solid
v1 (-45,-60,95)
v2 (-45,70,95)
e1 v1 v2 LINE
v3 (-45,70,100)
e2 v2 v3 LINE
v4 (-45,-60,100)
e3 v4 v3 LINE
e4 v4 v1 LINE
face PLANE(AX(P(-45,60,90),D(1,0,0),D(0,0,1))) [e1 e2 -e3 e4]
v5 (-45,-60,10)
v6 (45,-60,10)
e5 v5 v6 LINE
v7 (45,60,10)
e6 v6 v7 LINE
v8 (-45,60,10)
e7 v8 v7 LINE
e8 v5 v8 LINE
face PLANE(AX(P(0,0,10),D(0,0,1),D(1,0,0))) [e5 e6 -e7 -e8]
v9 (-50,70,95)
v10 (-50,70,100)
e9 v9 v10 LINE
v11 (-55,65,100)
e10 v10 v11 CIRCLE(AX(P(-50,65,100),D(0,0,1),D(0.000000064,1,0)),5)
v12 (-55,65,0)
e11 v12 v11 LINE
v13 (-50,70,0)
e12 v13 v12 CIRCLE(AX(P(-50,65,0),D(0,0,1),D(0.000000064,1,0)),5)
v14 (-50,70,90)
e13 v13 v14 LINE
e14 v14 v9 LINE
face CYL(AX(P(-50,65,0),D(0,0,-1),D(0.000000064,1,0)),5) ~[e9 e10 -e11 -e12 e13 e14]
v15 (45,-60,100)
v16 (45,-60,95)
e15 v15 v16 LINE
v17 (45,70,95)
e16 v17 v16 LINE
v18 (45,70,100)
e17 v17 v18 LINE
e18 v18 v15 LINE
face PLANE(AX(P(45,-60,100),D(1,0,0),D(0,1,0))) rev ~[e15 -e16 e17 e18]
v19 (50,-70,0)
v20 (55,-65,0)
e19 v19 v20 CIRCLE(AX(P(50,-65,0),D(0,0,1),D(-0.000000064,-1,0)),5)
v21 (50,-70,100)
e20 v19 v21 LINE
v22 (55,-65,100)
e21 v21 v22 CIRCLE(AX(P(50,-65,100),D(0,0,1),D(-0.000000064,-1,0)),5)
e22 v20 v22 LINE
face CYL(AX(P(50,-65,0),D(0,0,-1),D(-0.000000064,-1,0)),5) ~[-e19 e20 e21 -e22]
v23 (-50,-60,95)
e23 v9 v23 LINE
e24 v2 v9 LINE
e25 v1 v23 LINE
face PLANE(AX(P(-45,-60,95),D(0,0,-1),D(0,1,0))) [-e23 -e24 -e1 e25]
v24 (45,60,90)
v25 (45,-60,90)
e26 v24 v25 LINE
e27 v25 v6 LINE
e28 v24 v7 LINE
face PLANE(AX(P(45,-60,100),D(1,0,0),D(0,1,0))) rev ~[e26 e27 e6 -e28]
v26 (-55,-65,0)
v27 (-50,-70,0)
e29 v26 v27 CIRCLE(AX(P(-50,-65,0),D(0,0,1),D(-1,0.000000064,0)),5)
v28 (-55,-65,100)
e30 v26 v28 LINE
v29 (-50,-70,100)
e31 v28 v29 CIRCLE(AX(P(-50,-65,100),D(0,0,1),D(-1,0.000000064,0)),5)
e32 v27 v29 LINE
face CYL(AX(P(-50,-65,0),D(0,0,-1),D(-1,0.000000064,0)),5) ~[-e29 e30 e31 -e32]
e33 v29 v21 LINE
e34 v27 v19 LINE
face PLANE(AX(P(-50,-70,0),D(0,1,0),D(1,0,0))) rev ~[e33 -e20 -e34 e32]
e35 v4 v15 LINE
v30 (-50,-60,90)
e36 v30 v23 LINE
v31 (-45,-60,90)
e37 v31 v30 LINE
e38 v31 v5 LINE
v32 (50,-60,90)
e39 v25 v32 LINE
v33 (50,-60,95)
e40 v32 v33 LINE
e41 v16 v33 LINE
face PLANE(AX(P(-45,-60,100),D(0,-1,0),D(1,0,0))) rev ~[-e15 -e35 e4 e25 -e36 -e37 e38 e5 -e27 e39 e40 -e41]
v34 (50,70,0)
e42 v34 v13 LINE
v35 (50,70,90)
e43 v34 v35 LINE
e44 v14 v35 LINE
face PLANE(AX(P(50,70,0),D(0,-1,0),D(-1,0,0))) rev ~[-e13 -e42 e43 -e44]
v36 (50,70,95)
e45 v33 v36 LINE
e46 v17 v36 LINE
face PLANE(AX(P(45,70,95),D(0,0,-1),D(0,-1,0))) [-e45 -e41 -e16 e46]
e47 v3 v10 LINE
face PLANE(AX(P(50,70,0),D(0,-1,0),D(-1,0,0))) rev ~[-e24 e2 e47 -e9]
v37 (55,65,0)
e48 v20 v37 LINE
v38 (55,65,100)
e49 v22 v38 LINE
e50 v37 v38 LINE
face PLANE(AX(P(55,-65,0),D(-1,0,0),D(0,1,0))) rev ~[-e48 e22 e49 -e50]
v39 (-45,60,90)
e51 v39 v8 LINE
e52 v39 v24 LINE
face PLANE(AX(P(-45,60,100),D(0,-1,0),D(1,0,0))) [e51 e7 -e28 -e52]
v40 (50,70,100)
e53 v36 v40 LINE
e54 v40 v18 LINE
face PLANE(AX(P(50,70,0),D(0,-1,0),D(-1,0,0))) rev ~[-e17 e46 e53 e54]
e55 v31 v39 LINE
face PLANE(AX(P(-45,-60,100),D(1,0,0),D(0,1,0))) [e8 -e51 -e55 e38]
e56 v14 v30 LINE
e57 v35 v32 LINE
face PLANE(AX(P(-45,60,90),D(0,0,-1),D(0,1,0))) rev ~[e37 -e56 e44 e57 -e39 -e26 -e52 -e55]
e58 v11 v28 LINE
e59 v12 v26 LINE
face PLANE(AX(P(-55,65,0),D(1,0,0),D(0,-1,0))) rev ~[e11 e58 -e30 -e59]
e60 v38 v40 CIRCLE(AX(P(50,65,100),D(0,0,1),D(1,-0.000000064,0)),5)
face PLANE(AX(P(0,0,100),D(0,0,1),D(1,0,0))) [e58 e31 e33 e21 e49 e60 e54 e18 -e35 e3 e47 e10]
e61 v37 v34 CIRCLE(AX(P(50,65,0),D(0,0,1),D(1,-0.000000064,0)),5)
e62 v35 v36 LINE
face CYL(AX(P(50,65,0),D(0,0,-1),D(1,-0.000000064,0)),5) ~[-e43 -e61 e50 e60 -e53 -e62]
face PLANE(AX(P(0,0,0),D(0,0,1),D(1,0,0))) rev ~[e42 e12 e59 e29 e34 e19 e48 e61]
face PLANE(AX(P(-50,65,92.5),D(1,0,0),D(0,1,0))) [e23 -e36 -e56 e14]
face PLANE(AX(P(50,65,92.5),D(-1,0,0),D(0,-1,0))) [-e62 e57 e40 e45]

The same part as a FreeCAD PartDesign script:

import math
import FreeCAD as App
import Part
import Sketcher

V = App.Vector

doc = App.newDocument("Part")
body = doc.addObject("PartDesign::Body", "Body")

sketch1 = doc.addObject("Sketcher::SketchObject", "Sketch")
body.addObject(sketch1)
sketch1.AttachmentSupport = (doc.XY_Plane, [""])
sketch1.MapMode = "FlatFace"
sketch1.addGeometry([
    Part.LineSegment(V(-50, -70, 0), V(50, -70, 0)),
    Part.ArcOfCircle(Part.Circle(V(50, -65, 0), V(0, 0, 1), 5), math.radians(-90), math.radians(0)),
    Part.LineSegment(V(55, -65, 0), V(55, 65, 0)),
    Part.ArcOfCircle(Part.Circle(V(50, 65, 0), V(0, 0, 1), 5), math.radians(0), math.radians(90)),
    Part.LineSegment(V(50, 70, 0), V(-50, 70, 0)),
    Part.ArcOfCircle(Part.Circle(V(-50, 65, 0), V(0, 0, 1), 5), math.radians(90), math.radians(180)),
    Part.LineSegment(V(-55, 65, 0), V(-55, -65, 0)),
    Part.ArcOfCircle(Part.Circle(V(-50, -65, 0), V(0, 0, 1), 5), math.radians(180), math.radians(270)),
], False)
sketch1.addConstraint([
    Sketcher.Constraint("Tangent", 0, 2, 1, 1),
    Sketcher.Constraint("Tangent", 1, 2, 2, 1),
    Sketcher.Constraint("Tangent", 2, 2, 3, 1),
    Sketcher.Constraint("Tangent", 3, 2, 4, 1),
    Sketcher.Constraint("Tangent", 4, 2, 5, 1),
    Sketcher.Constraint("Tangent", 5, 2, 6, 1),
    Sketcher.Constraint("Tangent", 6, 2, 7, 1),
    Sketcher.Constraint("Tangent", 7, 2, 0, 1),
    Sketcher.Constraint("Horizontal", 0),
    Sketcher.Constraint("Vertical", 2),
    Sketcher.Constraint("Horizontal", 4),
    Sketcher.Constraint("Vertical", 6),
    Sketcher.Constraint("Equal", 1, 3),
    Sketcher.Constraint("Equal", 3, 5),
    Sketcher.Constraint("Equal", 5, 7),
    Sketcher.Constraint("Symmetric", 1, 3, 5, 3, -1, 1),
    Sketcher.Constraint("Radius", 1, 5.0),
    Sketcher.Constraint("DistanceX", 0, 1, 0, 2, 100.0),
    Sketcher.Constraint("DistanceY", 2, 1, 2, 2, 130.0),
])
pad1 = doc.addObject("PartDesign::Pad", "Pad")
body.addObject(pad1)
pad1.Profile = sketch1
pad1.Length = 100

sketch2 = doc.addObject("Sketcher::SketchObject", "Sketch001")
body.addObject(sketch2)
sketch2.AttachmentSupport = (doc.XY_Plane, [""])
sketch2.MapMode = "FlatFace"
sketch2.AttachmentOffset = App.Placement(V(0, 0, 100), App.Rotation())
sketch2.addGeometry([
    Part.LineSegment(V(-45, 60, 0), V(-45, -60, 0)),
    Part.LineSegment(V(-45, -60, 0), V(45, -60, 0)),
    Part.LineSegment(V(45, -60, 0), V(45, 60, 0)),
    Part.LineSegment(V(45, 60, 0), V(-45, 60, 0)),
], False)
sketch2.addConstraint([
    Sketcher.Constraint("Coincident", 0, 2, 1, 1),
    Sketcher.Constraint("Coincident", 1, 2, 2, 1),
    Sketcher.Constraint("Coincident", 2, 2, 3, 1),
    Sketcher.Constraint("Coincident", 3, 2, 0, 1),
    Sketcher.Constraint("Vertical", 0),
    Sketcher.Constraint("Horizontal", 1),
    Sketcher.Constraint("Vertical", 2),
    Sketcher.Constraint("Horizontal", 3),
    Sketcher.Constraint("Symmetric", 0, 2, 2, 2, -1, 1),
    Sketcher.Constraint("DistanceX", 1, 1, 1, 2, 90.0),
    Sketcher.Constraint("DistanceY", 0, 2, 0, 1, 120.0),
])
pocket1 = doc.addObject("PartDesign::Pocket", "Pocket")
body.addObject(pocket1)
pocket1.Profile = sketch2
pocket1.Length = 90

sketch3 = doc.addObject("Sketcher::SketchObject", "Sketch002")
body.addObject(sketch3)
sketch3.AttachmentSupport = (doc.YZ_Plane, [""])
sketch3.MapMode = "FlatFace"
sketch3.AttachmentOffset = App.Placement(V(0, 0, 45), App.Rotation())
sketch3.addGeometry([
    Part.LineSegment(V(60, 95, 0), V(60, 90, 0)),
    Part.LineSegment(V(60, 90, 0), V(-60, 90, 0)),
    Part.LineSegment(V(-60, 90, 0), V(-60, 95, 0)),
    Part.LineSegment(V(-60, 95, 0), V(60, 95, 0)),
], False)
sketch3.addConstraint([
    Sketcher.Constraint("Coincident", 0, 2, 1, 1),
    Sketcher.Constraint("Coincident", 1, 2, 2, 1),
    Sketcher.Constraint("Coincident", 2, 2, 3, 1),
    Sketcher.Constraint("Coincident", 3, 2, 0, 1),
    Sketcher.Constraint("Vertical", 0),
    Sketcher.Constraint("Horizontal", 1),
    Sketcher.Constraint("Vertical", 2),
    Sketcher.Constraint("Horizontal", 3),
    Sketcher.Constraint("DistanceX", 1, 2, 1, 1, 120.0),
    Sketcher.Constraint("DistanceY", 0, 2, 0, 1, 5.0),
    Sketcher.Constraint("DistanceX", -1, 1, 0, 2, 60.0),
    Sketcher.Constraint("DistanceY", -1, 1, 0, 2, 90.0),
])
pocket2 = doc.addObject("PartDesign::Pocket", "Pocket001")
body.addObject(pocket2)
pocket2.Profile = sketch3
pocket2.Length = 5
pocket2.Reversed = True

sketch4 = doc.addObject("Sketcher::SketchObject", "Sketch003")
body.addObject(sketch4)
sketch4.AttachmentSupport = (doc.YZ_Plane, [""])
sketch4.MapMode = "FlatFace"
sketch4.AttachmentOffset = App.Placement(V(0, 0, -45), App.Rotation())
sketch4.addGeometry([
    Part.LineSegment(V(-60, 95, 0), V(-60, 90, 0)),
    Part.LineSegment(V(-60, 90, 0), V(60, 90, 0)),
    Part.LineSegment(V(60, 90, 0), V(60, 95, 0)),
    Part.LineSegment(V(60, 95, 0), V(-60, 95, 0)),
], False)
sketch4.addConstraint([
    Sketcher.Constraint("Coincident", 0, 2, 1, 1),
    Sketcher.Constraint("Coincident", 1, 2, 2, 1),
    Sketcher.Constraint("Coincident", 2, 2, 3, 1),
    Sketcher.Constraint("Coincident", 3, 2, 0, 1),
    Sketcher.Constraint("Vertical", 0),
    Sketcher.Constraint("Horizontal", 1),
    Sketcher.Constraint("Vertical", 2),
    Sketcher.Constraint("Horizontal", 3),
    Sketcher.Constraint("DistanceX", 1, 1, 1, 2, 120.0),
    Sketcher.Constraint("DistanceY", 0, 2, 0, 1, 5.0),
    Sketcher.Constraint("DistanceX", 0, 2, -1, 1, 60.0),
    Sketcher.Constraint("DistanceY", -1, 1, 0, 2, 90.0),
])
pocket3 = doc.addObject("PartDesign::Pocket", "Pocket002")
body.addObject(pocket3)
pocket3.Profile = sketch4
pocket3.Length = 5

sketch5 = doc.addObject("Sketcher::SketchObject", "Sketch004")
body.addObject(sketch5)
sketch5.AttachmentSupport = (doc.XZ_Plane, [""])
sketch5.MapMode = "FlatFace"
sketch5.AttachmentOffset = App.Placement(V(0, 0, -60), App.Rotation())
sketch5.addGeometry([
    Part.LineSegment(V(-45, 100, 0), V(-45, 90, 0)),
    Part.LineSegment(V(-45, 90, 0), V(45, 90, 0)),
    Part.LineSegment(V(45, 90, 0), V(45, 100, 0)),
    Part.LineSegment(V(45, 100, 0), V(-45, 100, 0)),
], False)
sketch5.addConstraint([
    Sketcher.Constraint("Coincident", 0, 2, 1, 1),
    Sketcher.Constraint("Coincident", 1, 2, 2, 1),
    Sketcher.Constraint("Coincident", 2, 2, 3, 1),
    Sketcher.Constraint("Coincident", 3, 2, 0, 1),
    Sketcher.Constraint("Vertical", 0),
    Sketcher.Constraint("Horizontal", 1),
    Sketcher.Constraint("Vertical", 2),
    Sketcher.Constraint("Horizontal", 3),
    Sketcher.Constraint("DistanceX", 1, 1, 1, 2, 90.0),
    Sketcher.Constraint("DistanceY", 0, 2, 0, 1, 10.0),
    Sketcher.Constraint("DistanceX", 0, 2, -1, 1, 45.0),
    Sketcher.Constraint("DistanceY", -1, 1, 0, 2, 90.0),
])
pocket4 = doc.addObject("PartDesign::Pocket", "Pocket003")
body.addObject(pocket4)
pocket4.Profile = sketch5
pocket4.Length = 10

sketch6 = doc.addObject("Sketcher::SketchObject", "Sketch005")
body.addObject(sketch6)
sketch6.AttachmentSupport = (doc.YZ_Plane, [""])
sketch6.MapMode = "FlatFace"
sketch6.AttachmentOffset = App.Placement(V(0, 0, 45), App.Rotation())
sketch6.addGeometry([
    Part.LineSegment(V(70, 95, 0), V(70, 90, 0)),
    Part.LineSegment(V(70, 90, 0), V(60, 90, 0)),
    Part.LineSegment(V(60, 90, 0), V(60, 95, 0)),
    Part.LineSegment(V(60, 95, 0), V(70, 95, 0)),
], False)
sketch6.addConstraint([
    Sketcher.Constraint("Coincident", 0, 2, 1, 1),
    Sketcher.Constraint("Coincident", 1, 2, 2, 1),
    Sketcher.Constraint("Coincident", 2, 2, 3, 1),
    Sketcher.Constraint("Coincident", 3, 2, 0, 1),
    Sketcher.Constraint("Vertical", 0),
    Sketcher.Constraint("Horizontal", 1),
    Sketcher.Constraint("Vertical", 2),
    Sketcher.Constraint("Horizontal", 3),
    Sketcher.Constraint("DistanceX", 1, 2, 1, 1, 10.0),
    Sketcher.Constraint("DistanceY", 0, 2, 0, 1, 5.0),
    Sketcher.Constraint("DistanceX", -1, 1, 0, 2, 70.0),
    Sketcher.Constraint("DistanceY", -1, 1, 0, 2, 90.0),
])
pocket5 = doc.addObject("PartDesign::Pocket", "Pocket004")
body.addObject(pocket5)
pocket5.Profile = sketch6
pocket5.Length = 5
pocket5.Reversed = True

sketch7 = doc.addObject("Sketcher::SketchObject", "Sketch006")
body.addObject(sketch7)
sketch7.AttachmentSupport = (doc.YZ_Plane, [""])
sketch7.MapMode = "FlatFace"
sketch7.AttachmentOffset = App.Placement(V(0, 0, -45), App.Rotation())
sketch7.addGeometry([
    Part.LineSegment(V(60, 95, 0), V(60, 90, 0)),
    Part.LineSegment(V(60, 90, 0), V(70, 90, 0)),
    Part.LineSegment(V(70, 90, 0), V(70, 95, 0)),
    Part.LineSegment(V(70, 95, 0), V(60, 95, 0)),
], False)
sketch7.addConstraint([
    Sketcher.Constraint("Coincident", 0, 2, 1, 1),
    Sketcher.Constraint("Coincident", 1, 2, 2, 1),
    Sketcher.Constraint("Coincident", 2, 2, 3, 1),
    Sketcher.Constraint("Coincident", 3, 2, 0, 1),
    Sketcher.Constraint("Vertical", 0),
    Sketcher.Constraint("Horizontal", 1),
    Sketcher.Constraint("Vertical", 2),
    Sketcher.Constraint("Horizontal", 3),
    Sketcher.Constraint("DistanceX", 1, 1, 1, 2, 10.0),
    Sketcher.Constraint("DistanceY", 0, 2, 0, 1, 5.0),
    Sketcher.Constraint("DistanceX", -1, 1, 0, 2, 60.0),
    Sketcher.Constraint("DistanceY", -1, 1, 0, 2, 90.0),
])
pocket6 = doc.addObject("PartDesign::Pocket", "Pocket005")
body.addObject(pocket6)
pocket6.Profile = sketch7
pocket6.Length = 5

doc.recompute()
